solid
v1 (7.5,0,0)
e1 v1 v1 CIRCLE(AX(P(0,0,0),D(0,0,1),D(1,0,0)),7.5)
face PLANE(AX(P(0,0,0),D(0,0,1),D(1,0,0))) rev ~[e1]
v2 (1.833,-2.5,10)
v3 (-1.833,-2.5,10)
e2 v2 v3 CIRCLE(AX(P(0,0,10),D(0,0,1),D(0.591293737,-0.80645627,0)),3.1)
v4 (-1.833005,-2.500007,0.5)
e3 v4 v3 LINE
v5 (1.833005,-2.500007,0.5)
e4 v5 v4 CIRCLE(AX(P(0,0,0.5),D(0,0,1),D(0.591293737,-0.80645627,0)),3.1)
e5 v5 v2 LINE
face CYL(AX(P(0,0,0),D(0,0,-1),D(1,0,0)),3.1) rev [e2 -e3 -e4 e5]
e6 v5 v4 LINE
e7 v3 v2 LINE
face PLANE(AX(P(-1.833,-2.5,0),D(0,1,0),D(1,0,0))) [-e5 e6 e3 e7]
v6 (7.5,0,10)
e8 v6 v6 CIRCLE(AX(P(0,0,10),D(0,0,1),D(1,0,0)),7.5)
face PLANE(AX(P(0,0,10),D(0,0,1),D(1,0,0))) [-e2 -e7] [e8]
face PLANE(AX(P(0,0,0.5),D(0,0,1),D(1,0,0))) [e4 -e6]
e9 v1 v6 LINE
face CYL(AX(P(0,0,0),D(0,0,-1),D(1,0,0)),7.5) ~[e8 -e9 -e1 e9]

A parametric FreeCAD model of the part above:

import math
import FreeCAD as App
import Part
import Sketcher

V = App.Vector
Q = App.Units.Quantity

doc = App.newDocument("Part")
body = doc.addObject("PartDesign::Body", "Body")

sketch1 = body.newObject("Sketcher::SketchObject", "Sketch")
sketch1.AttachmentSupport = (doc.getObject("XY_Plane"), [""])
sketch1.MapMode = "FlatFace"
sketch1.addGeometry(Part.Circle(V(0, 0, 0), V(0, 0, 1), 3.1), False)
sketch1.addConstraint([
    Sketcher.Constraint("Coincident", 0, 3, -1, 1),
    Sketcher.Constraint("Diameter", 0, Q("6.2 mm")),
])
pad1 = body.newObject("PartDesign::Pad", "Pad")
pad1.Profile = sketch1
pad1.Length = 0.5

sketch2 = body.newObject("Sketcher::SketchObject", "Sketch001")
sketch2.AttachmentSupport = (doc.getObject("XY_Plane"), [""])
sketch2.MapMode = "FlatFace"
sketch2.addGeometry([
    Part.Circle(V(0, 0, 0), V(0, 0, 1), 7.5),
    Part.LineSegment(V(1.8, -2.5, 0), V(-1.8, -2.5, 0)),
    Part.ArcOfCircle(Part.Circle(V(0, 0, 0), V(0, 0, 1), 3.1), math.radians(-54), math.radians(234)),
], False)
sketch2.addConstraint([
    Sketcher.Constraint("Coincident", 1, 1, 2, 1),
    Sketcher.Constraint("Coincident", 2, 2, 1, 2),
    Sketcher.Constraint("Horizontal", 1),
    Sketcher.Constraint("Coincident", 0, 3, -1, 1),
    Sketcher.Constraint("Coincident", 2, 3, -1, 1),
    Sketcher.Constraint("Diameter", 0, Q("15 mm")),
    Sketcher.Constraint("Radius", 2, Q("3.1 mm")),
    Sketcher.Constraint("DistanceY", 1, 1, -1, 1, Q("2.5 mm")),
])
pad2 = body.newObject("PartDesign::Pad", "Pad001")
pad2.Profile = sketch2
pad2.Length = 10

doc.recompute()
